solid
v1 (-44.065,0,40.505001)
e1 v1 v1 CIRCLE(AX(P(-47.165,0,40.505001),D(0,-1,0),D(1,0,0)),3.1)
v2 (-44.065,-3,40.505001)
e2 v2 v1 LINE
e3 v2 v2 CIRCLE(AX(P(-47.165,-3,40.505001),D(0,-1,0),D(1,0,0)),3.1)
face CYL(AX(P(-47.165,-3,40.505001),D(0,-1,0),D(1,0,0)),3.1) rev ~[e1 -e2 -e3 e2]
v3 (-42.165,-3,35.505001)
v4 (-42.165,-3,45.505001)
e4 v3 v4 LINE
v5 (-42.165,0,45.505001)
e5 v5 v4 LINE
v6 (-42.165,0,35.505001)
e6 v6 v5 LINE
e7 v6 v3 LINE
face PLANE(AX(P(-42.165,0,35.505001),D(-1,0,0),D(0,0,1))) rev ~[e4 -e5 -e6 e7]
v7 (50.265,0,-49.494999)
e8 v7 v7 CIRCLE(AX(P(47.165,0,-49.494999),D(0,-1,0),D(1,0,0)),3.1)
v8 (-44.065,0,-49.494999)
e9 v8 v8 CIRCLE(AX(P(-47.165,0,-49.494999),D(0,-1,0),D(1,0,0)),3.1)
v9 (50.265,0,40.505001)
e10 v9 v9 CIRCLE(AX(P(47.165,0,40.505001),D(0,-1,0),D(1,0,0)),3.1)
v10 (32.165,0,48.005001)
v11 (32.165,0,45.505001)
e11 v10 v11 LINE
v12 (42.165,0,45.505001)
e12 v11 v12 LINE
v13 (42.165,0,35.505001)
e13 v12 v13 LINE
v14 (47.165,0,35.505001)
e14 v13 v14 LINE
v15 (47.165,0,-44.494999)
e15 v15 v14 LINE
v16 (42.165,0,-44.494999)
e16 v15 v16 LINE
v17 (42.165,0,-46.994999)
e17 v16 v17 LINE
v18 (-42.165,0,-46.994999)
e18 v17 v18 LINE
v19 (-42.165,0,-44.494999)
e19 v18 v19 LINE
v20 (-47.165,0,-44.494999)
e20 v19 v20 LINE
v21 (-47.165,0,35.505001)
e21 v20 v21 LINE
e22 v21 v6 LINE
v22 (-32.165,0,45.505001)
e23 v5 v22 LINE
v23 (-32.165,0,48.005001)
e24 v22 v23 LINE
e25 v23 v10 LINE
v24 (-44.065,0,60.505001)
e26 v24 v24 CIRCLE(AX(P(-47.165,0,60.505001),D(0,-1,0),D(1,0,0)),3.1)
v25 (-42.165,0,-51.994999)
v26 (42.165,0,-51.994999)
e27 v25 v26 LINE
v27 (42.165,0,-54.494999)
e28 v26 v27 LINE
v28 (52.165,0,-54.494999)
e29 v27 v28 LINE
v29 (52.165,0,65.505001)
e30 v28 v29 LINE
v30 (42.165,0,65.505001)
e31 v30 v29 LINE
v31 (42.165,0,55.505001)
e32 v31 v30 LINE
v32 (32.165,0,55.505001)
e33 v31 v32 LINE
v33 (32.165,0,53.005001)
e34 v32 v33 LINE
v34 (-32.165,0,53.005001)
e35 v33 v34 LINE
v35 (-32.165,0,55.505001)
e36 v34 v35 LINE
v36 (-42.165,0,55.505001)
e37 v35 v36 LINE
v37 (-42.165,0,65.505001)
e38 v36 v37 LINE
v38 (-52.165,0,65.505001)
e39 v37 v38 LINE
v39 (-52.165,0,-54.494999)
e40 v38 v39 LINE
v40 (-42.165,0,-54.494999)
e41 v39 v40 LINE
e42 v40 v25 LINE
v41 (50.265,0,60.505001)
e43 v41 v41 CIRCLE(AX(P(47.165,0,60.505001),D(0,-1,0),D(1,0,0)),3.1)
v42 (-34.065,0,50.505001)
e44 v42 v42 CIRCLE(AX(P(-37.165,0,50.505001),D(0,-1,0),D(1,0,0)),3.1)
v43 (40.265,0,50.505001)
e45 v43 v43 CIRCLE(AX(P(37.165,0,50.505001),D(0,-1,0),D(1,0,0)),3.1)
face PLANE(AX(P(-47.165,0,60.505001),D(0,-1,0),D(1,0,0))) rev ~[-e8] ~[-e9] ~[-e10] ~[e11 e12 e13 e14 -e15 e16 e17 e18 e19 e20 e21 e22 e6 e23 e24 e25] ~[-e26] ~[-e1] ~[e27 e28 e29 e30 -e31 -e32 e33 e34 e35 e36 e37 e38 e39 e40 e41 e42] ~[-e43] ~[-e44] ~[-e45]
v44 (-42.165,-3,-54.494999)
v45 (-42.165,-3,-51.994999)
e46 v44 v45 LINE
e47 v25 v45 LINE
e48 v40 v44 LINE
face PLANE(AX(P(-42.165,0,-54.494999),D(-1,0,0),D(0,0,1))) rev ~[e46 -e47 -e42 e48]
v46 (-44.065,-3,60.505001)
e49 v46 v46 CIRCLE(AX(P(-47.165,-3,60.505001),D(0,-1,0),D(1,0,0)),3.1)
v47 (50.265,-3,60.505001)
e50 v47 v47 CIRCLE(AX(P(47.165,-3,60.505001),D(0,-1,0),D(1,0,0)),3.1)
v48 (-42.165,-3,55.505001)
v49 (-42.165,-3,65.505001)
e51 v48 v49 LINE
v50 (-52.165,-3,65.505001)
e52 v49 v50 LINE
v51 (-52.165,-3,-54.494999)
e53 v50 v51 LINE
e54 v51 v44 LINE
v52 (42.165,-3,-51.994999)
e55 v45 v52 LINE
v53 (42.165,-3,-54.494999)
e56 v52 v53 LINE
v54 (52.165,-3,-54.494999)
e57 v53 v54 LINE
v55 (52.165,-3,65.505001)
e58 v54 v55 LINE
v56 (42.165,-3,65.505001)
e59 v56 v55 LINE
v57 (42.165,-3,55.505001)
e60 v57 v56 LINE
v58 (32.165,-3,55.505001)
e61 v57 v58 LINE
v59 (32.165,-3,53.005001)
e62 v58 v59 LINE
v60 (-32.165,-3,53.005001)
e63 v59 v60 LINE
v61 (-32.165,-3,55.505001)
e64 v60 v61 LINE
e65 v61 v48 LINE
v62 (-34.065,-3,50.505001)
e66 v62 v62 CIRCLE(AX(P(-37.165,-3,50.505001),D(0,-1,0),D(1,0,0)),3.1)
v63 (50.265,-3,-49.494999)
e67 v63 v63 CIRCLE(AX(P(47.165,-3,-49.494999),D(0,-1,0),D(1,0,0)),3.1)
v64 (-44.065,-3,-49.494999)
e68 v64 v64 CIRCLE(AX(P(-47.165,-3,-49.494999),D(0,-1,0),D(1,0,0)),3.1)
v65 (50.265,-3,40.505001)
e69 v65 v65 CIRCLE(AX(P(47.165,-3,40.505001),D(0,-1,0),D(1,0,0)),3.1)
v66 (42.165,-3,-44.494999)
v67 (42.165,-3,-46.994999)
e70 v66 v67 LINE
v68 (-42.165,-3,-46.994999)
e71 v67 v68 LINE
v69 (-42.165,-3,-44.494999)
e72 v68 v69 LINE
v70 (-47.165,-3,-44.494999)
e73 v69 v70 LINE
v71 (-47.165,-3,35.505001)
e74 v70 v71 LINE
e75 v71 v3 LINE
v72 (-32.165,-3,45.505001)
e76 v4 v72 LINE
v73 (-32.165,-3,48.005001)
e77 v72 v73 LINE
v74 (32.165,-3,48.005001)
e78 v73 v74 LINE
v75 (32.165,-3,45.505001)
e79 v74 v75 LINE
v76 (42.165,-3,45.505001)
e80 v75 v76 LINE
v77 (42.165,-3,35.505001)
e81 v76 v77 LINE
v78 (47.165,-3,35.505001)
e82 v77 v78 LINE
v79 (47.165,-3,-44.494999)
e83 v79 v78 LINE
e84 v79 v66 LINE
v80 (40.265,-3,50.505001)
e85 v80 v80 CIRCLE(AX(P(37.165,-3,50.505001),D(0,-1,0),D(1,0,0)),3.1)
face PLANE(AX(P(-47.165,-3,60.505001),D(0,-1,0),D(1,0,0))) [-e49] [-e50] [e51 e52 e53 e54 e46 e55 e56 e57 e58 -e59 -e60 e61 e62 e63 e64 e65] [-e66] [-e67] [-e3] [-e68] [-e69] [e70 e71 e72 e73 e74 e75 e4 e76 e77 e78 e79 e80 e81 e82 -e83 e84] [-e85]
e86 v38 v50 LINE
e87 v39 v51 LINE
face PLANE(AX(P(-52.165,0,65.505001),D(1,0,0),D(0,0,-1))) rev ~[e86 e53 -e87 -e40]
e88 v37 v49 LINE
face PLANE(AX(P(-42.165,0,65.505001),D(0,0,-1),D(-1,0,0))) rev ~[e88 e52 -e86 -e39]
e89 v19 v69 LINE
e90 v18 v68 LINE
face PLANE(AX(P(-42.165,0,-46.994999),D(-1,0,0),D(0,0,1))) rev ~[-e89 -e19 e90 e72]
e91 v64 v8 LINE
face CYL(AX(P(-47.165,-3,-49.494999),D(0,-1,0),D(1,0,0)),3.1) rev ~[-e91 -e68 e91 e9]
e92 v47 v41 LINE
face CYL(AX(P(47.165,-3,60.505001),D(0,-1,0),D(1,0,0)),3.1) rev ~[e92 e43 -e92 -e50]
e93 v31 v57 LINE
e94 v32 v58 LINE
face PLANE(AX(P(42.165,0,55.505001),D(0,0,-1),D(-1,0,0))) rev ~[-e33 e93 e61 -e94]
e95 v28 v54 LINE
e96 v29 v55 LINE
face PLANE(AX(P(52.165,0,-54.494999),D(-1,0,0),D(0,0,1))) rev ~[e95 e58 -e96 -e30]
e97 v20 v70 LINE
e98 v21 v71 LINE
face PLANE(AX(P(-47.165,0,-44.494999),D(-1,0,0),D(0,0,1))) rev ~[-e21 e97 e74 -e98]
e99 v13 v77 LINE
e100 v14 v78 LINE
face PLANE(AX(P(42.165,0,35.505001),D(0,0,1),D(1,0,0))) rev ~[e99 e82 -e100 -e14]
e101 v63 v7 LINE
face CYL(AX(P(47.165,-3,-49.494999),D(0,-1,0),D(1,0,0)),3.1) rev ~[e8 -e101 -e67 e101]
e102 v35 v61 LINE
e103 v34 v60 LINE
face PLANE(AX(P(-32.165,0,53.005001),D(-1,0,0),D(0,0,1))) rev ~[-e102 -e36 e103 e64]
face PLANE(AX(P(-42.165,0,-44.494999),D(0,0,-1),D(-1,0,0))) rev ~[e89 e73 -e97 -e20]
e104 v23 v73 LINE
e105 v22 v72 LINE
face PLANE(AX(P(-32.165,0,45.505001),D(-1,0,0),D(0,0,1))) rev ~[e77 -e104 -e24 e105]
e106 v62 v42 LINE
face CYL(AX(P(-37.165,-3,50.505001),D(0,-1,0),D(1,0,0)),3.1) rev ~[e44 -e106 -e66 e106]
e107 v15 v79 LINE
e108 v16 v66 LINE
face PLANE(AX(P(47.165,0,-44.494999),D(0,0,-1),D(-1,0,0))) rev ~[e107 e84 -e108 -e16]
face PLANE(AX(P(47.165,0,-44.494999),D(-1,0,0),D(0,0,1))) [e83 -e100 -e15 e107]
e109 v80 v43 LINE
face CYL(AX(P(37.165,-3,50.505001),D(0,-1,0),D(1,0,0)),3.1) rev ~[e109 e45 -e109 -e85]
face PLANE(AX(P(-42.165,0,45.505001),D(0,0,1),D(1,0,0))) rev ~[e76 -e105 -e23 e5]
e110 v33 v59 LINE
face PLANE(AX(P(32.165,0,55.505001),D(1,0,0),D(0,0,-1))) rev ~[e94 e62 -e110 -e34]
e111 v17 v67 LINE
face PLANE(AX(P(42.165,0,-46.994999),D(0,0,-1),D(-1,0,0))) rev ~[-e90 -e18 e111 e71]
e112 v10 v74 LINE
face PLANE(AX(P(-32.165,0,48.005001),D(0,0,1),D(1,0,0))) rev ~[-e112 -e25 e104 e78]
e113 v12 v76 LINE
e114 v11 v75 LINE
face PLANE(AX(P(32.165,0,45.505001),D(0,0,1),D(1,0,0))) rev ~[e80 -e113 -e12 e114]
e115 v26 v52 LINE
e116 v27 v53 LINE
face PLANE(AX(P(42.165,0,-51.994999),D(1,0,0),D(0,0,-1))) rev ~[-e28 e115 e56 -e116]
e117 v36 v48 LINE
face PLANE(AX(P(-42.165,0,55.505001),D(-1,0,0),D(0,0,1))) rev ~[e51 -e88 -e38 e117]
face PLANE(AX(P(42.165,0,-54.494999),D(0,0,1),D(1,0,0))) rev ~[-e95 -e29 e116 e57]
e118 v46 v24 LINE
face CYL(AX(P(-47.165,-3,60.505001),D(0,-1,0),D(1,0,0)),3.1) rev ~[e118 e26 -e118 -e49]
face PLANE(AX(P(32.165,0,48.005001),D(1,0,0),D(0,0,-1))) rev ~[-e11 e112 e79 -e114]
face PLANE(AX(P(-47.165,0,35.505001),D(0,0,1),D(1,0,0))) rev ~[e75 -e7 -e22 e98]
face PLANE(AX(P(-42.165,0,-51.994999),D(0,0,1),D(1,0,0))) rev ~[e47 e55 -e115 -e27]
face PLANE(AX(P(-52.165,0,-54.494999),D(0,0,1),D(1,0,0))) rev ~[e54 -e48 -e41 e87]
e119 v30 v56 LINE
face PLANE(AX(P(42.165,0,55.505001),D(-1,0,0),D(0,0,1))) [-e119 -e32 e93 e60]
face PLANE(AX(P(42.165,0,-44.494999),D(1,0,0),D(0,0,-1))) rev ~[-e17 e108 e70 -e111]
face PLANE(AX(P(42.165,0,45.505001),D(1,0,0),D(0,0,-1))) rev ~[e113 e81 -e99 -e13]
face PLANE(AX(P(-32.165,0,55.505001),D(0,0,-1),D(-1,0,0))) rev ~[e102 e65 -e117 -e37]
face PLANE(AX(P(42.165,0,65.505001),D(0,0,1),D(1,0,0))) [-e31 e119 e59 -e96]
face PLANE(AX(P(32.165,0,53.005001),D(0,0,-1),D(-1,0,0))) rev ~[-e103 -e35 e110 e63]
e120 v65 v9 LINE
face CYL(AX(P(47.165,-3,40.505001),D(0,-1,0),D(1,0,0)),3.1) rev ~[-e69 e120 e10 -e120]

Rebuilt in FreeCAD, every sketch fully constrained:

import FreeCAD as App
import Part
import Sketcher

doc = App.newDocument("Part")
body = doc.addObject("PartDesign::Body", "Body")

# Sketch on XZ plane
sketch1 = body.newObject("Sketcher::SketchObject", "Sketch")
sketch1.AttachmentSupport = (doc.getObject("XZ_Plane"), [""])
sketch1.MapMode = "FlatFace"
sketch1.addGeometry(Part.LineSegment(App.Vector(-52.2, 65.5, 0), App.Vector(-52.2, -54.5, 0)), False)
sketch1.addGeometry(Part.LineSegment(App.Vector(-52.2, -54.5, 0), App.Vector(-42.2, -54.5, 0)), False)
sketch1.addGeometry(Part.LineSegment(App.Vector(-42.2, -54.5, 0), App.Vector(-42.2, -52, 0)), False)
sketch1.addGeometry(Part.LineSegment(App.Vector(-42.2, -52, 0), App.Vector(42.2, -52, 0)), False)
sketch1.addGeometry(Part.LineSegment(App.Vector(42.2, -52, 0), App.Vector(42.2, -54.5, 0)), False)
sketch1.addGeometry(Part.LineSegment(App.Vector(42.2, -54.5, 0), App.Vector(52.2, -54.5, 0)), False)
sketch1.addGeometry(Part.LineSegment(App.Vector(52.2, -54.5, 0), App.Vector(52.2, 65.5, 0)), False)
sketch1.addGeometry(Part.LineSegment(App.Vector(52.2, 65.5, 0), App.Vector(42.2, 65.5, 0)), False)
sketch1.addGeometry(Part.LineSegment(App.Vector(42.2, 65.5, 0), App.Vector(42.2, 55.5, 0)), False)
sketch1.addGeometry(Part.LineSegment(App.Vector(42.2, 55.5, 0), App.Vector(32.2, 55.5, 0)), False)
sketch1.addGeometry(Part.LineSegment(App.Vector(32.2, 55.5, 0), App.Vector(32.2, 53, 0)), False)
sketch1.addGeometry(Part.LineSegment(App.Vector(32.2, 53, 0), App.Vector(-32.2, 53, 0)), False)
sketch1.addGeometry(Part.LineSegment(App.Vector(-32.2, 53, 0), App.Vector(-32.2, 55.5, 0)), False)
sketch1.addGeometry(Part.LineSegment(App.Vector(-32.2, 55.5, 0), App.Vector(-42.2, 55.5, 0)), False)
sketch1.addGeometry(Part.LineSegment(App.Vector(-42.2, 55.5, 0), App.Vector(-42.2, 65.5, 0)), False)
sketch1.addGeometry(Part.LineSegment(App.Vector(-42.2, 65.5, 0), App.Vector(-52.2, 65.5, 0)), False)
sketch1.addGeometry(Part.LineSegment(App.Vector(47.2, -44.5, 0), App.Vector(42.2, -44.5, 0)), False)
sketch1.addGeometry(Part.LineSegment(App.Vector(42.2, -44.5, 0), App.Vector(42.2, -47, 0)), False)
sketch1.addGeometry(Part.LineSegment(App.Vector(42.2, -47, 0), App.Vector(-42.2, -47, 0)), False)
sketch1.addGeometry(Part.LineSegment(App.Vector(-42.2, -47, 0), App.Vector(-42.2, -44.5, 0)), False)
sketch1.addGeometry(Part.LineSegment(App.Vector(-42.2, -44.5, 0), App.Vector(-47.2, -44.5, 0)), False)
sketch1.addGeometry(Part.LineSegment(App.Vector(-47.2, -44.5, 0), App.Vector(-47.2, 35.5, 0)), False)
sketch1.addGeometry(Part.LineSegment(App.Vector(-47.2, 35.5, 0), App.Vector(-42.2, 35.5, 0)), False)
sketch1.addGeometry(Part.LineSegment(App.Vector(-42.2, 35.5, 0), App.Vector(-42.2, 45.5, 0)), False)
sketch1.addGeometry(Part.LineSegment(App.Vector(-42.2, 45.5, 0), App.Vector(-32.2, 45.5, 0)), False)
sketch1.addGeometry(Part.LineSegment(App.Vector(-32.2, 45.5, 0), App.Vector(-32.2, 48, 0)), False)
sketch1.addGeometry(Part.LineSegment(App.Vector(-32.2, 48, 0), App.Vector(32.2, 48, 0)), False)
sketch1.addGeometry(Part.LineSegment(App.Vector(32.2, 48, 0), App.Vector(32.2, 45.5, 0)), False)
sketch1.addGeometry(Part.LineSegment(App.Vector(32.2, 45.5, 0), App.Vector(42.2, 45.5, 0)), False)
sketch1.addGeometry(Part.LineSegment(App.Vector(42.2, 45.5, 0), App.Vector(42.2, 35.5, 0)), False)
sketch1.addGeometry(Part.LineSegment(App.Vector(42.2, 35.5, 0), App.Vector(47.2, 35.5, 0)), False)
sketch1.addGeometry(Part.LineSegment(App.Vector(47.2, 35.5, 0), App.Vector(47.2, -44.5, 0)), False)
sketch1.addConstraint(Sketcher.Constraint("Coincident", 0, 2, 1, 1))
sketch1.addConstraint(Sketcher.Constraint("Coincident", 1, 2, 2, 1))
sketch1.addConstraint(Sketcher.Constraint("Coincident", 2, 2, 3, 1))
sketch1.addConstraint(Sketcher.Constraint("Coincident", 3, 2, 4, 1))
sketch1.addConstraint(Sketcher.Constraint("Coincident", 4, 2, 5, 1))
sketch1.addConstraint(Sketcher.Constraint("Coincident", 5, 2, 6, 1))
sketch1.addConstraint(Sketcher.Constraint("Coincident", 6, 2, 7, 1))
sketch1.addConstraint(Sketcher.Constraint("Coincident", 7, 2, 8, 1))
sketch1.addConstraint(Sketcher.Constraint("Coincident", 8, 2, 9, 1))
sketch1.addConstraint(Sketcher.Constraint("Coincident", 9, 2, 10, 1))
sketch1.addConstraint(Sketcher.Constraint("Coincident", 10, 2, 11, 1))
sketch1.addConstraint(Sketcher.Constraint("Coincident", 11, 2, 12, 1))
sketch1.addConstraint(Sketcher.Constraint("Coincident", 12, 2, 13, 1))
sketch1.addConstraint(Sketcher.Constraint("Coincident", 13, 2, 14, 1))
sketch1.addConstraint(Sketcher.Constraint("Coincident", 14, 2, 15, 1))
sketch1.addConstraint(Sketcher.Constraint("Coincident", 15, 2, 0, 1))
sketch1.addConstraint(Sketcher.Constraint("Coincident", 16, 2, 17, 1))
sketch1.addConstraint(Sketcher.Constraint("Coincident", 17, 2, 18, 1))
sketch1.addConstraint(Sketcher.Constraint("Coincident", 18, 2, 19, 1))
sketch1.addConstraint(Sketcher.Constraint("Coincident", 19, 2, 20, 1))
sketch1.addConstraint(Sketcher.Constraint("Coincident", 20, 2, 21, 1))
sketch1.addConstraint(Sketcher.Constraint("Coincident", 21, 2, 22, 1))
sketch1.addConstraint(Sketcher.Constraint("Coincident", 22, 2, 23, 1))
sketch1.addConstraint(Sketcher.Constraint("Coincident", 23, 2, 24, 1))
sketch1.addConstraint(Sketcher.Constraint("Coincident", 24, 2, 25, 1))
sketch1.addConstraint(Sketcher.Constraint("Coincident", 25, 2, 26, 1))
sketch1.addConstraint(Sketcher.Constraint("Coincident", 26, 2, 27, 1))
sketch1.addConstraint(Sketcher.Constraint("Coincident", 27, 2, 28, 1))
sketch1.addConstraint(Sketcher.Constraint("Coincident", 28, 2, 29, 1))
sketch1.addConstraint(Sketcher.Constraint("Coincident", 29, 2, 30, 1))
sketch1.addConstraint(Sketcher.Constraint("Coincident", 30, 2, 31, 1))
sketch1.addConstraint(Sketcher.Constraint("Coincident", 31, 2, 16, 1))
sketch1.addConstraint(Sketcher.Constraint("Vertical", 0))
sketch1.addConstraint(Sketcher.Constraint("Horizontal", 1))
sketch1.addConstraint(Sketcher.Constraint("Vertical", 2))
sketch1.addConstraint(Sketcher.Constraint("Horizontal", 3))
sketch1.addConstraint(Sketcher.Constraint("Vertical", 4))
sketch1.addConstraint(Sketcher.Constraint("Horizontal", 5))
sketch1.addConstraint(Sketcher.Constraint("Vertical", 6))
sketch1.addConstraint(Sketcher.Constraint("Horizontal", 7))
sketch1.addConstraint(Sketcher.Constraint("Vertical", 8))
sketch1.addConstraint(Sketcher.Constraint("Horizontal", 9))
sketch1.addConstraint(Sketcher.Constraint("Vertical", 10))
sketch1.addConstraint(Sketcher.Constraint("Horizontal", 11))
sketch1.addConstraint(Sketcher.Constraint("Vertical", 12))
sketch1.addConstraint(Sketcher.Constraint("Horizontal", 13))
sketch1.addConstraint(Sketcher.Constraint("Vertical", 14))
sketch1.addConstraint(Sketcher.Constraint("Horizontal", 15))
sketch1.addConstraint(Sketcher.Constraint("Horizontal", 16))
sketch1.addConstraint(Sketcher.Constraint("Vertical", 17))
sketch1.addConstraint(Sketcher.Constraint("Horizontal", 18))
sketch1.addConstraint(Sketcher.Constraint("Vertical", 19))
sketch1.addConstraint(Sketcher.Constraint("Horizontal", 20))
sketch1.addConstraint(Sketcher.Constraint("Vertical", 21))
sketch1.addConstraint(Sketcher.Constraint("Horizontal", 22))
sketch1.addConstraint(Sketcher.Constraint("Vertical", 23))
sketch1.addConstraint(Sketcher.Constraint("Horizontal", 24))
sketch1.addConstraint(Sketcher.Constraint("Vertical", 25))
sketch1.addConstraint(Sketcher.Constraint("Horizontal", 26))
sketch1.addConstraint(Sketcher.Constraint("Vertical", 27))
sketch1.addConstraint(Sketcher.Constraint("Horizontal", 28))
sketch1.addConstraint(Sketcher.Constraint("Vertical", 29))
sketch1.addConstraint(Sketcher.Constraint("Horizontal", 30))
sketch1.addConstraint(Sketcher.Constraint("Vertical", 31))
sketch1.addConstraint(Sketcher.Constraint("Symmetric", 1, 2, 4, 2, -2))
sketch1.addConstraint(Sketcher.Constraint("Symmetric", 9, 2, 12, 2, -2))
sketch1.addConstraint(Sketcher.Constraint("Symmetric", 7, 2, 14, 2, -2))
sketch1.addConstraint(Sketcher.Constraint("Symmetric", 16, 2, 19, 2, -2))
sketch1.addConstraint(Sketcher.Constraint("Symmetric", 24, 2, 27, 2, -2))
sketch1.addConstraint(Sketcher.Constraint("Symmetric", 22, 2, 29, 2, -2))
sketch1.addConstraint(Sketcher.Constraint("Vertical", 4, 2, 7, 2))
sketch1.addConstraint(Sketcher.Constraint("Vertical", 8, 2, 16, 2))
sketch1.addConstraint(Sketcher.Constraint("Vertical", 19, 2, 22, 2))
sketch1.addConstraint(Sketcher.Constraint("Vertical", 12, 2, 24, 2))
sketch1.addConstraint(Sketcher.Constraint("Equal", 1, 5))
sketch1.addConstraint(Sketcher.Constraint("Equal", 7, 9))
sketch1.addConstraint(Sketcher.Constraint("Equal", 16, 20))
sketch1.addConstraint(Sketcher.Constraint("Equal", 28, 8))
sketch1.addConstraint(Sketcher.Constraint("Equal", 4, 10))
sketch1.addConstraint(Sketcher.Constraint("Equal", 12, 17))
sketch1.addConstraint(Sketcher.Constraint("Equal", 14, 23))
sketch1.addConstraint(Sketcher.Constraint("Equal", 19, 25))
sketch1.addConstraint(Sketcher.Constraint("DistanceX", 1, 1, 1, 2, 10.0))
sketch1.addConstraint(Sketcher.Constraint("DistanceX", 16, 2, 16, 1, 5.0))
sketch1.addConstraint(Sketcher.Constraint("DistanceY", 0, 2, 0, 1, 120.0))
sketch1.addConstraint(Sketcher.Constraint("DistanceY", 21, 1, 21, 2, 80.0))
sketch1.addConstraint(Sketcher.Constraint("DistanceY", 2, 1, 2, 2, 2.5))
sketch1.addConstraint(Sketcher.Constraint("DistanceY", 4, 2, 16, 2, 10.0))
sketch1.addConstraint(Sketcher.Constraint("DistanceX", 3, 1, 3, 2, 84.33))
sketch1.addConstraint(Sketcher.Constraint("DistanceY", 0, 2, -1, 1, 54.494999))
pad1 = body.newObject("PartDesign::Pad", "Pad")
pad1.Profile = sketch1
pad1.Length = 3

# Sketch on XZ plane
sketch2 = body.newObject("Sketcher::SketchObject", "Sketch001")
sketch2.AttachmentSupport = (doc.getObject("XZ_Plane"), [""])
sketch2.MapMode = "FlatFace"
sketch2.AttachmentOffset = App.Placement(App.Vector(0, 0, 3), App.Rotation())
sketch2.addGeometry(Part.Circle(App.Vector(-47.2, 60.5, 0), App.Vector(0, 0, 1), 3.1), False)
sketch2.addGeometry(Part.Circle(App.Vector(-47.2, 40.5, 0), App.Vector(0, 0, 1), 3.1), False)
sketch2.addGeometry(Part.Circle(App.Vector(-47.2, -49.5, 0), App.Vector(0, 0, 1), 3.1), False)
sketch2.addGeometry(Part.Circle(App.Vector(-37.2, 50.5, 0), App.Vector(0, 0, 1), 3.1), False)
sketch2.addGeometry(Part.Circle(App.Vector(47.2, 60.5, 0), App.Vector(0, 0, 1), 3.1), False)
sketch2.addGeometry(Part.Circle(App.Vector(37.2, 50.5, 0), App.Vector(0, 0, 1), 3.1), False)
sketch2.addGeometry(Part.Circle(App.Vector(47.2, 40.5, 0), App.Vector(0, 0, 1), 3.1), False)
sketch2.addGeometry(Part.Circle(App.Vector(47.2, -49.5, 0), App.Vector(0, 0, 1), 3.1), False)
sketch2.addConstraint(Sketcher.Constraint("Equal", 0, 1))
sketch2.addConstraint(Sketcher.Constraint("Equal", 1, 2))
sketch2.addConstraint(Sketcher.Constraint("Equal", 2, 3))
sketch2.addConstraint(Sketcher.Constraint("Equal", 3, 4))
sketch2.addConstraint(Sketcher.Constraint("Equal", 4, 5))
sketch2.addConstraint(Sketcher.Constraint("Equal", 5, 6))
sketch2.addConstraint(Sketcher.Constraint("Equal", 6, 7))
sketch2.addConstraint(Sketcher.Constraint("Symmetric", 0, 3, 4, 3, -2))
sketch2.addConstraint(Sketcher.Constraint("Symmetric", 3, 3, 5, 3, -2))
sketch2.addConstraint(Sketcher.Constraint("Symmetric", 1, 3, 6, 3, -2))
sketch2.addConstraint(Sketcher.Constraint("Symmetric", 2, 3, 7, 3, -2))
sketch2.addConstraint(Sketcher.Constraint("Vertical", 0, 3, 1, 3))
sketch2.addConstraint(Sketcher.Constraint("Vertical", 1, 3, 2, 3))
sketch2.addConstraint(Sketcher.Constraint("Diameter", 0, 6.2))
sketch2.addConstraint(Sketcher.Constraint("DistanceY", 1, 3, 0, 3, 20.0))
sketch2.addConstraint(Sketcher.Constraint("DistanceY", 2, 3, 1, 3, 90.0))
sketch2.addConstraint(Sketcher.Constraint("DistanceX", 0, 3, 3, 3, 10.0))
sketch2.addConstraint(Sketcher.Constraint("DistanceY", 3, 3, 0, 3, 10.0))
sketch2.addConstraint(Sketcher.Constraint("DistanceX", 3, 3, 4, 3, 84.33))
sketch2.addConstraint(Sketcher.Constraint("DistanceY", -1, 1, 0, 3, 60.505001))
pocket1 = body.newObject("PartDesign::Pocket", "Pocket")
pocket1.Profile = sketch2
pocket1.Type = "ThroughAll"

doc.recompute()
